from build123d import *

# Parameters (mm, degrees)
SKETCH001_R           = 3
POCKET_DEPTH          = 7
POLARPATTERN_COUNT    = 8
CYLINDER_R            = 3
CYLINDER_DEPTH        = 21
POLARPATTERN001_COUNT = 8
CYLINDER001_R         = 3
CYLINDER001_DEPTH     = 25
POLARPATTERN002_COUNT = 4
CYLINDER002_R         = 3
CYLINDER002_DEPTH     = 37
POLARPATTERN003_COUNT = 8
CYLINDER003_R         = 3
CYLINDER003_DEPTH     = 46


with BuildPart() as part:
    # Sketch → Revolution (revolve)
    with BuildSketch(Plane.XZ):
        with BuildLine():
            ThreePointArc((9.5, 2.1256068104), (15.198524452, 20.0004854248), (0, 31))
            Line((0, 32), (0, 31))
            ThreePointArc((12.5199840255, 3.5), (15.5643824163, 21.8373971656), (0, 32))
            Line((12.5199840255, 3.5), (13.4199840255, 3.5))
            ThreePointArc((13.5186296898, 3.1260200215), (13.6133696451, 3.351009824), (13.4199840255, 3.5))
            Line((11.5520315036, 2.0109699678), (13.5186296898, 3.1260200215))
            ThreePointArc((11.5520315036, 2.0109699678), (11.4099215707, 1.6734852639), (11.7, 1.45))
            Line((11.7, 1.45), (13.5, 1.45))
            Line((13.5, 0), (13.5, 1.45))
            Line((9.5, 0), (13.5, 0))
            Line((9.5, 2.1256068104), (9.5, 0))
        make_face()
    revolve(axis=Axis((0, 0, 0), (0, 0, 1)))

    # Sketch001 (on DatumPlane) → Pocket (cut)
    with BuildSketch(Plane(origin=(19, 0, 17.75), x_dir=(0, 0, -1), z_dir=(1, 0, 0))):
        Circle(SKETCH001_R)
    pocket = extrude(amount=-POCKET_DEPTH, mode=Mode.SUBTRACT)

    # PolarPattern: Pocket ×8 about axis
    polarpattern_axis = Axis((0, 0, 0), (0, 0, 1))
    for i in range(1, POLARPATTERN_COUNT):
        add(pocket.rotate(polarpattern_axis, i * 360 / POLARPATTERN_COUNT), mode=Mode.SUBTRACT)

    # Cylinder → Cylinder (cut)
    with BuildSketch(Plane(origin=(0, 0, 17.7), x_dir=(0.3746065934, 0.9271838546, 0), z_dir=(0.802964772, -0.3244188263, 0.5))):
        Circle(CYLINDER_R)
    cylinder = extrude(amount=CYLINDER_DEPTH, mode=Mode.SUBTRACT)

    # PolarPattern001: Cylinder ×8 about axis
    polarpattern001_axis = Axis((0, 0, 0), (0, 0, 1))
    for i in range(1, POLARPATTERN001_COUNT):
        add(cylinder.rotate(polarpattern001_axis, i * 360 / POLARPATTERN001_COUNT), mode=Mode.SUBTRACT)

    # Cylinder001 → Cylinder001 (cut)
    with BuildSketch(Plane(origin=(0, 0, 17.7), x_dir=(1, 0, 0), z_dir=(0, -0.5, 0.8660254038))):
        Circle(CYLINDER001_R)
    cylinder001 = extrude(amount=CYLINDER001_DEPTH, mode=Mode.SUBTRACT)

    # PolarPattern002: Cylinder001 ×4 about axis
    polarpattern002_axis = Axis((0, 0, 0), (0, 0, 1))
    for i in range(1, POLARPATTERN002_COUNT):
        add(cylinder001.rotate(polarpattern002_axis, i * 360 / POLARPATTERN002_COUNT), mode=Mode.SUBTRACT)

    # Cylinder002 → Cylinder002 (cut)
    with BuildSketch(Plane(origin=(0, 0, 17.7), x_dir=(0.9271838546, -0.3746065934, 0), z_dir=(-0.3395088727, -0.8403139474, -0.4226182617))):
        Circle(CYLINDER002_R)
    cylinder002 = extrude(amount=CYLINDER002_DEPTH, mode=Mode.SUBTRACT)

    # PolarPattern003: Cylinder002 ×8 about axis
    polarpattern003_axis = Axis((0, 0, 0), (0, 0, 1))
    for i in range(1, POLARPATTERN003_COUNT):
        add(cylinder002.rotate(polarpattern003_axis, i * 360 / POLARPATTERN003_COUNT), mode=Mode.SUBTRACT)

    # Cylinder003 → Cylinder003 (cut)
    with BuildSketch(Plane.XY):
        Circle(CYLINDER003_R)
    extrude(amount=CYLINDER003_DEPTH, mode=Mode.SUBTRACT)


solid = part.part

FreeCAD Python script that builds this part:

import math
import FreeCAD as App
import Part
import Sketcher

doc = App.newDocument("Part")
body = doc.addObject("PartDesign::Body", "Body")

# Sketch on XZ plane
sketch1 = doc.addObject("Sketcher::SketchObject", "Sketch")
body.addObject(sketch1)
sketch1.AttachmentSupport = (doc.XZ_Plane, [""])
sketch1.MapMode = "FlatFace"
sketch1.addGeometry([
    Part.ArcOfCircle(Part.Circle(App.Vector(0, 15, 0), App.Vector(0, 0, 1), 16), math.radians(-53.576426), math.radians(90)),  # 0
    Part.LineSegment(App.Vector(9.5, 2.125607, 0), App.Vector(9.5, 0, 0)),  # 1
    Part.LineSegment(App.Vector(9.5, 0, 0), App.Vector(13.5, 0, 0)),  # 2
    Part.LineSegment(App.Vector(13.5, 0, 0), App.Vector(13.5, 1.45, 0)),  # 3
    Part.LineSegment(App.Vector(13.5, 1.45, 0), App.Vector(11.7, 1.45, 0)),  # 4
    Part.ArcOfCircle(Part.Circle(App.Vector(11.7, 1.75, 0), App.Vector(0, 0, 1), 0.3), math.radians(119.552991), math.radians(270)),  # 5
    Part.LineSegment(App.Vector(11.552032, 2.01097, 0), App.Vector(13.51863, 3.12602, 0)),  # 6
    Part.ArcOfCircle(Part.Circle(App.Vector(13.419984, 3.3, 0), App.Vector(0, 0, 1), 0.2), math.radians(-60.447008), math.radians(90)),  # 7
    Part.LineSegment(App.Vector(13.419984, 3.5, 0), App.Vector(12.519984, 3.5, 0)),  # 8
    Part.ArcOfCircle(Part.Circle(App.Vector(0, 15, 0), App.Vector(0, 0, 1), 17), math.radians(-42.568454), math.radians(90)),  # 9
    Part.LineSegment(App.Vector(0, 32, 0), App.Vector(0, 31, 0)),  # 10
], False)
sketch1.addConstraint([
    Sketcher.Constraint("Coincident", 0, 1, 1, 1),
    Sketcher.Constraint("Coincident", 1, 2, 2, 1),
    Sketcher.Constraint("Coincident", 2, 2, 3, 1),
    Sketcher.Constraint("Coincident", 3, 2, 4, 1),
    Sketcher.Constraint("Tangent", 4, 2, 5, 2),
    Sketcher.Constraint("Tangent", 5, 1, 6, 1),
    Sketcher.Constraint("Tangent", 6, 2, 7, 1),
    Sketcher.Constraint("Tangent", 7, 2, 8, 1),
    Sketcher.Constraint("Coincident", 8, 2, 9, 1),
    Sketcher.Constraint("Coincident", 9, 2, 10, 1),
    Sketcher.Constraint("Coincident", 10, 2, 0, 2),
    Sketcher.Constraint("Vertical", 1),
    Sketcher.Constraint("Horizontal", 2),
    Sketcher.Constraint("Vertical", 3),
    Sketcher.Constraint("Horizontal", 4),
    Sketcher.Constraint("Horizontal", 8),
    Sketcher.Constraint("Vertical", 10),
    Sketcher.Constraint("Coincident", 9, 3, 0, 3),
    Sketcher.Constraint("PointOnObject", 0, 3, -2),
    Sketcher.Constraint("PointOnObject", 1, 2, -1),
    Sketcher.Constraint("PointOnObject", 9, 2, -2),
    Sketcher.Constraint("Radius", 0, 16.0),
    Sketcher.Constraint("Radius", 9, 17.0),
    Sketcher.Constraint("Radius", 5, 0.3),
    Sketcher.Constraint("Radius", 7, 0.2),
    Sketcher.Constraint("DistanceX", 2, 1, 2, 2, 4.0),
    Sketcher.Constraint("DistanceX", 4, 2, 4, 1, 1.8),
    Sketcher.Constraint("DistanceX", 8, 2, 8, 1, 0.9),
    Sketcher.Constraint("DistanceY", -1, 1, 0, 3, 15.0),
    Sketcher.Constraint("DistanceY", 3, 1, 3, 2, 1.45),
    Sketcher.Constraint("DistanceX", -1, 1, 5, 3, 11.7),
    Sketcher.Constraint("DistanceY", -1, 1, 7, 3, 3.3),
])
revolution = doc.addObject("PartDesign::Revolution", "Revolution")
body.addObject(revolution)
revolution.Profile = sketch1
revolution.ReferenceAxis = (sketch1, ["V_Axis"])
revolution.Angle = 360

# Sketch on YZ plane
sketch2 = doc.addObject("Sketcher::SketchObject", "Sketch001")
body.addObject(sketch2)
sketch2.AttachmentSupport = (doc.YZ_Plane, [""])
sketch2.MapMode = "FlatFace"
sketch2.AttachmentOffset = App.Placement(App.Vector(0, 0, 19), App.Rotation())
sketch2.addGeometry(Part.Circle(App.Vector(0, 17.75, 0), App.Vector(0, 0, 1), 3), False)
sketch2.addConstraint([
    Sketcher.Constraint("PointOnObject", 0, 3, -2),
    Sketcher.Constraint("Diameter", 0, 6.0),
    Sketcher.Constraint("DistanceY", -1, 1, 0, 3, 17.75),
])
pocket1 = doc.addObject("PartDesign::Pocket", "Pocket")
body.addObject(pocket1)
pocket1.Profile = sketch2
pocket1.Length = 7
doc.recompute()

polarpattern = doc.addObject("PartDesign::PolarPattern", "PolarPattern")
body.addObject(polarpattern)
polarpattern.Originals = [pocket1]
polarpattern.Axis = (doc.Z_Axis, [""])
polarpattern.Angle = 360
polarpattern.Occurrences = 8
body.Tip = polarpattern

# Sketch on an angled plane
sketch3 = doc.addObject("Sketcher::SketchObject", "Sketch002")
body.addObject(sketch3)
sketch3.Placement = App.Placement(App.Vector(0, 0, 17.7), App.Rotation(App.Vector(0.374606593, 0.927183855, 0), App.Vector(-0.463591928, 0.187303296, 0.866025404), App.Vector(0.802964772, -0.324418826, 0.5), "ZXY"))
sketch3.addGeometry(Part.Circle(App.Vector(0, 0, 0), App.Vector(0, 0, 1), 3), False)
sketch3.addConstraint([
    Sketcher.Constraint("Coincident", 0, 3, -1, 1),
    Sketcher.Constraint("Diameter", 0, 6.0),
])
pocket2 = doc.addObject("PartDesign::Pocket", "Pocket001")
body.addObject(pocket2)
pocket2.Profile = sketch3
pocket2.Length = 21
pocket2.Reversed = True
doc.recompute()

polarpattern2 = doc.addObject("PartDesign::PolarPattern", "PolarPattern001")
body.addObject(polarpattern2)
polarpattern2.Originals = [pocket2]
polarpattern2.Axis = (doc.Z_Axis, [""])
polarpattern2.Angle = 360
polarpattern2.Occurrences = 8
body.Tip = polarpattern2

# Sketch on an angled plane
sketch4 = doc.addObject("Sketcher::SketchObject", "Sketch003")
body.addObject(sketch4)
sketch4.Placement = App.Placement(App.Vector(0, 0, 17.7), App.Rotation(App.Vector(1, 0, 0), App.Vector(0, 0.866025404, 0.5), App.Vector(0, -0.5, 0.866025404), "ZXY"))
sketch4.addGeometry(Part.Circle(App.Vector(0, 0, 0), App.Vector(0, 0, 1), 3), False)
sketch4.addConstraint([
    Sketcher.Constraint("Coincident", 0, 3, -1, 1),
    Sketcher.Constraint("Diameter", 0, 6.0),
])
pocket3 = doc.addObject("PartDesign::Pocket", "Pocket002")
body.addObject(pocket3)
pocket3.Profile = sketch4
pocket3.Length = 25
pocket3.Reversed = True
doc.recompute()

polarpattern3 = doc.addObject("PartDesign::PolarPattern", "PolarPattern002")
body.addObject(polarpattern3)
polarpattern3.Originals = [pocket3]
polarpattern3.Axis = (doc.Z_Axis, [""])
polarpattern3.Angle = 360
polarpattern3.Occurrences = 4
body.Tip = polarpattern3

# Sketch on an angled plane
sketch5 = doc.addObject("Sketcher::SketchObject", "Sketch004")
body.addObject(sketch5)
sketch5.Placement = App.Placement(App.Vector(0, 0, 17.7), App.Rotation(App.Vector(0.927183855, -0.374606593, 0), App.Vector(-0.158315587, -0.391844829, 0.906307787), App.Vector(-0.339508873, -0.840313947, -0.422618262), "ZXY"))
sketch5.addGeometry(Part.Circle(App.Vector(0, 0, 0), App.Vector(0, 0, 1), 3), False)
sketch5.addConstraint([
    Sketcher.Constraint("Coincident", 0, 3, -1, 1),
    Sketcher.Constraint("Diameter", 0, 6.0),
])
pocket4 = doc.addObject("PartDesign::Pocket", "Pocket003")
body.addObject(pocket4)
pocket4.Profile = sketch5
pocket4.Length = 37
pocket4.Reversed = True
doc.recompute()

polarpattern4 = doc.addObject("PartDesign::PolarPattern", "PolarPattern003")
body.addObject(polarpattern4)
polarpattern4.Originals = [pocket4]
polarpattern4.Axis = (doc.Z_Axis, [""])
polarpattern4.Angle = 360
polarpattern4.Occurrences = 8
body.Tip = polarpattern4

# Sketch on XY plane
sketch6 = doc.addObject("Sketcher::SketchObject", "Sketch005")
body.addObject(sketch6)
sketch6.AttachmentSupport = (doc.XY_Plane, [""])
sketch6.MapMode = "FlatFace"
sketch6.addGeometry(Part.Circle(App.Vector(0, 0, 0), App.Vector(0, 0, 1), 3), False)
sketch6.addConstraint([
    Sketcher.Constraint("Coincident", 0, 3, -1, 1),
    Sketcher.Constraint("Diameter", 0, 6.0),
])
pocket5 = doc.addObject("PartDesign::Pocket", "Pocket004")
body.addObject(pocket5)
pocket5.Profile = sketch6
pocket5.Length = 46
pocket5.Reversed = True

doc.recompute()
